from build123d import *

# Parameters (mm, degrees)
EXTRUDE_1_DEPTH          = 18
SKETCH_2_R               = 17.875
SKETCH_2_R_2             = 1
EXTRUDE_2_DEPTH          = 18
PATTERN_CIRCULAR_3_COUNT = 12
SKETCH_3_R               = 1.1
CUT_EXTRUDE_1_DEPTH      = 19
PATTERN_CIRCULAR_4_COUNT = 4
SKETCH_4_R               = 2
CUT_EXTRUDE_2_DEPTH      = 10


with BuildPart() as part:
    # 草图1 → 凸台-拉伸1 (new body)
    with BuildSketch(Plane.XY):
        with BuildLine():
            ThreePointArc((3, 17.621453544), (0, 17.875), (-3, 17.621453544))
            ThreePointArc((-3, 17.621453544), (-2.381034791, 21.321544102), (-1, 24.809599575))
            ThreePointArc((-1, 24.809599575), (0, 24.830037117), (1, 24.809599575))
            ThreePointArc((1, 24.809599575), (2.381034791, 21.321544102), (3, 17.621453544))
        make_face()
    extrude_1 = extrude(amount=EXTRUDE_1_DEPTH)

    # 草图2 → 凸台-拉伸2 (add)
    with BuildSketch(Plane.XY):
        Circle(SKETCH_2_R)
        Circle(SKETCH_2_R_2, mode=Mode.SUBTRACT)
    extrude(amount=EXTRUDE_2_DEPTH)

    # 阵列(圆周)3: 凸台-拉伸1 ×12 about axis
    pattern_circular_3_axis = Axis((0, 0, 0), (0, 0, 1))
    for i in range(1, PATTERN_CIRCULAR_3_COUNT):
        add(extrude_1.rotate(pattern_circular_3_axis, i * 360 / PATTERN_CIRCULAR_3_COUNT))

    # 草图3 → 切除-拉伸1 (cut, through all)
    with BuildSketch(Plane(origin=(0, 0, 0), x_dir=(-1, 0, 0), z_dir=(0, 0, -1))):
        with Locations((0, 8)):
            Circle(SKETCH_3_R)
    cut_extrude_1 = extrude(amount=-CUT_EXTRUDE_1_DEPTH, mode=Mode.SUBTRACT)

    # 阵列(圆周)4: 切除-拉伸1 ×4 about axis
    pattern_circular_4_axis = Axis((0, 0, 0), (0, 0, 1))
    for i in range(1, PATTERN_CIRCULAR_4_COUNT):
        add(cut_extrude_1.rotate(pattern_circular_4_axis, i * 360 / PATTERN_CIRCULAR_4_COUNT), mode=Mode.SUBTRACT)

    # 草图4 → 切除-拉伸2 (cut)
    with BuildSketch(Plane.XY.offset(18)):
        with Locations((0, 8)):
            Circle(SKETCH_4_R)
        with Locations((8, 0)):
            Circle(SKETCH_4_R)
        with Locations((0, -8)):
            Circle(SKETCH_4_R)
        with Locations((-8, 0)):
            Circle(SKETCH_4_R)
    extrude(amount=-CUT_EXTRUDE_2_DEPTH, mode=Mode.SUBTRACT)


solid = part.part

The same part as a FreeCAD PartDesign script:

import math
import FreeCAD as App
import Part
import Sketcher
from FreeCAD import Vector
Q = App.Units.Quantity

doc = App.newDocument("Part")
body = doc.addObject("PartDesign::Body", "Body")

sketch1 = body.newObject("Sketcher::SketchObject", "Sketch")
sketch1.AttachmentSupport = (doc.getObject("XY_Plane"), [""])
sketch1.MapMode = "FlatFace"
sketch1.addGeometry(Part.ArcOfCircle(Part.Circle(Vector(0, 0, 0), Vector(0, 0, 1), 17.9), math.radians(80.34), math.radians(99.66)), False)
sketch1.addGeometry(Part.ArcOfCircle(Part.Circle(Vector(-14.8, 16.6, 0), Vector(0, 0, 1), 17.8), math.radians(3), math.radians(28)), False)
sketch1.addGeometry(Part.ArcOfCircle(Part.Circle(Vector(0, 0.4, 0), Vector(0, 0, 1), 24.5), math.radians(87.66), math.radians(92.34)), False)
sketch1.addGeometry(Part.ArcOfCircle(Part.Circle(Vector(14.8, 16.6, 0), Vector(0, 0, 1), 17.8), math.radians(152), math.radians(177)), False)
sketch1.addConstraint(Sketcher.Constraint("Coincident", 0, 1, 1, 1))
sketch1.addConstraint(Sketcher.Constraint("Coincident", 1, 2, 2, 1))
sketch1.addConstraint(Sketcher.Constraint("Coincident", 2, 2, 3, 1))
sketch1.addConstraint(Sketcher.Constraint("Coincident", 3, 2, 0, 2))
sketch1.addConstraint(Sketcher.Constraint("Coincident", 0, 3, -1, 1))
sketch1.addConstraint(Sketcher.Constraint("Equal", 1, 3))
sketch1.addConstraint(Sketcher.Constraint("Symmetric", 1, 3, 3, 3, -2))
sketch1.addConstraint(Sketcher.Constraint("PointOnObject", 2, 3, -2))
sketch1.addConstraint(Sketcher.Constraint("DistanceX", -1, 1, 0, 1, Q("3 mm")))
sketch1.addConstraint(Sketcher.Constraint("DistanceX", -1, 1, 1, 2, Q("1 mm")))
sketch1.addConstraint(Sketcher.Constraint("Radius", 0, Q("17.875 mm")))
sketch1.addConstraint(Sketcher.Constraint("Radius", 2, Q("24.475 mm")))
sketch1.addConstraint(Sketcher.Constraint("Radius", 1, Q("17.792003 mm")))
sketch1.addConstraint(Sketcher.Constraint("DistanceY", -1, 1, 1, 2, Q("24.8096 mm")))
pad1 = body.newObject("PartDesign::Pad", "Pad")
pad1.Profile = sketch1
pad1.Length = 18

sketch2 = body.newObject("Sketcher::SketchObject", "Sketch001")
sketch2.AttachmentSupport = (doc.getObject("XY_Plane"), [""])
sketch2.MapMode = "FlatFace"
sketch2.addGeometry(Part.Circle(Vector(0, 0, 0), Vector(0, 0, 1), 17.9), False)
sketch2.addGeometry(Part.Circle(Vector(0, 0, 0), Vector(0, 0, 1), 1), False)
sketch2.addConstraint(Sketcher.Constraint("Coincident", 0, 3, -1, 1))
sketch2.addConstraint(Sketcher.Constraint("Coincident", 1, 3, -1, 1))
sketch2.addConstraint(Sketcher.Constraint("Diameter", 1, Q("2 mm")))
sketch2.addConstraint(Sketcher.Constraint("Diameter", 0, Q("35.75 mm")))
pad2 = body.newObject("PartDesign::Pad", "Pad001")
pad2.Profile = sketch2
pad2.Length = 18
doc.recompute()

polarpattern = body.newObject("PartDesign::PolarPattern", "PolarPattern")
polarpattern.Originals = [pad1]
polarpattern.Axis = (doc.getObject("Z_Axis"), [""])
polarpattern.Angle = 360
polarpattern.Occurrences = 12
body.Tip = polarpattern

sketch3 = body.newObject("Sketcher::SketchObject", "Sketch002")
sketch3.AttachmentSupport = (doc.getObject("XY_Plane"), [""])
sketch3.MapMode = "FlatFace"
sketch3.addGeometry(Part.Circle(Vector(0, 8, 0), Vector(0, 0, 1), 1.1), False)
sketch3.addConstraint(Sketcher.Constraint("PointOnObject", 0, 3, -2))
sketch3.addConstraint(Sketcher.Constraint("Diameter", 0, Q("2.2 mm")))
sketch3.addConstraint(Sketcher.Constraint("DistanceY", -1, 1, 0, 3, Q("8 mm")))
pocket1 = body.newObject("PartDesign::Pocket", "Pocket")
pocket1.Profile = sketch3
pocket1.Type = "ThroughAll"
pocket1.Reversed = True
doc.recompute()

polarpattern2 = body.newObject("PartDesign::PolarPattern", "PolarPattern001")
polarpattern2.Originals = [pocket1]
polarpattern2.Axis = (doc.getObject("Z_Axis"), [""])
polarpattern2.Angle = 360
polarpattern2.Occurrences = 4
body.Tip = polarpattern2

sketch4 = body.newObject("Sketcher::SketchObject", "Sketch003")
sketch4.AttachmentSupport = (doc.getObject("XY_Plane"), [""])
sketch4.MapMode = "FlatFace"
sketch4.AttachmentOffset = App.Placement(Vector(0, 0, 18), App.Rotation())
sketch4.addGeometry(Part.Circle(Vector(0, 8, 0), Vector(0, 0, 1), 2), False)
sketch4.addGeometry(Part.Circle(Vector(8, 0, 0), Vector(0, 0, 1), 2), False)
sketch4.addGeometry(Part.Circle(Vector(0, -8, 0), Vector(0, 0, 1), 2), False)
sketch4.addGeometry(Part.Circle(Vector(-8, 0, 0), Vector(0, 0, 1), 2), False)
sketch4.addConstraint(Sketcher.Constraint("Equal", 0, 1))
sketch4.addConstraint(Sketcher.Constraint("Equal", 1, 2))
sketch4.addConstraint(Sketcher.Constraint("Equal", 2, 3))
sketch4.addConstraint(Sketcher.Constraint("Symmetric", 0, 3, 2, 3, -1, 1))
sketch4.addConstraint(Sketcher.Constraint("Symmetric", 1, 3, 3, 3, -1, 1))
sketch4.addConstraint(Sketcher.Constraint("PointOnObject", 0, 3, -2))
sketch4.addConstraint(Sketcher.Constraint("PointOnObject", 1, 3, -1))
sketch4.addConstraint(Sketcher.Constraint("Diameter", 0, Q("4 mm")))
sketch4.addConstraint(Sketcher.Constraint("DistanceY", -1, 1, 0, 3, Q("8 mm")))
sketch4.addConstraint(Sketcher.Constraint("DistanceX", -1, 1, 1, 3, Q("8 mm")))
pocket2 = body.newObject("PartDesign::Pocket", "Pocket001")
pocket2.Profile = sketch4
pocket2.Length = 10

doc.recompute()
